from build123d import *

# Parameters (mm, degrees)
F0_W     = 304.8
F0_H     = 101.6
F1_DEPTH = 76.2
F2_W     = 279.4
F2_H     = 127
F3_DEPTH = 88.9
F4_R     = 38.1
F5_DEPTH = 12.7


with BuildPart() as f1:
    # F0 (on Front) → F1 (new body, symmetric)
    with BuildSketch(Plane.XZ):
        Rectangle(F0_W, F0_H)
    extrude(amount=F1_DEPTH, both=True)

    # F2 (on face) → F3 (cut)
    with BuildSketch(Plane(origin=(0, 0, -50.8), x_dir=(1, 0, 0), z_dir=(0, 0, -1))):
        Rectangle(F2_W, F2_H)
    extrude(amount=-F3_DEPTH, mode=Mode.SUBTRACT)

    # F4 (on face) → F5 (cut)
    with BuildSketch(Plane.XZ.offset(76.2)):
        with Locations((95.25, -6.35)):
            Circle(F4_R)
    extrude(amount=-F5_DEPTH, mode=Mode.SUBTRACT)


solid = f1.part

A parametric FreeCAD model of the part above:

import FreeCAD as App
import Part
import Sketcher
from FreeCAD import Vector
Q = App.Units.Quantity


def add_polygon(sketch, points):
    """Adds a closed chain of lines whose ends are joined by coincident constraints."""
    first, n = sketch.GeometryCount, len(points)
    for a, b in zip(points, points[1:] + points[:1]):
        sketch.addGeometry(Part.LineSegment(App.Vector(*a, 0), App.Vector(*b, 0)), False)
    for i in range(n):
        sketch.addConstraint(Sketcher.Constraint("Coincident", first + i, 2, first + (i + 1) % n, 1))

doc = App.newDocument("Part")
body = doc.addObject("PartDesign::Body", "Body")

# Sketch on XZ plane
sketch1 = body.newObject("Sketcher::SketchObject", "Sketch")
sketch1.AttachmentSupport = (doc.getObject("XZ_Plane"), [""])
sketch1.MapMode = "FlatFace"
add_polygon(sketch1, [(-152, 51), (-152, -51), (152, -51), (152, 51)])  # lines 0-3
sketch1.addConstraint(Sketcher.Constraint("Vertical", 0))
sketch1.addConstraint(Sketcher.Constraint("Horizontal", 1))
sketch1.addConstraint(Sketcher.Constraint("Vertical", 2))
sketch1.addConstraint(Sketcher.Constraint("Horizontal", 3))
sketch1.addConstraint(Sketcher.Constraint("Symmetric", 0, 2, 2, 2, -1, 1))
sketch1.addConstraint(Sketcher.Constraint("DistanceX", 1, 1, 1, 2, Q("12 in")))
sketch1.addConstraint(Sketcher.Constraint("DistanceY", 0, 2, 0, 1, Q("4 in")))
pad1 = body.newObject("PartDesign::Pad", "Pad")
pad1.Profile = sketch1
pad1.Length = Q("6 in")
pad1.Midplane = True

# Sketch on XY plane
sketch2 = body.newObject("Sketcher::SketchObject", "Sketch001")
sketch2.AttachmentSupport = (doc.getObject("XY_Plane"), [""])
sketch2.MapMode = "FlatFace"
sketch2.AttachmentOffset = App.Placement(Vector(0, 0, -2 * 25.4), App.Rotation())
add_polygon(sketch2, [(-140, -64), (-140, 64), (140, 64), (140, -64)])  # lines 0-3
sketch2.addConstraint(Sketcher.Constraint("Vertical", 0))
sketch2.addConstraint(Sketcher.Constraint("Horizontal", 1))
sketch2.addConstraint(Sketcher.Constraint("Vertical", 2))
sketch2.addConstraint(Sketcher.Constraint("Horizontal", 3))
sketch2.addConstraint(Sketcher.Constraint("Symmetric", 0, 2, 2, 2, -1, 1))
sketch2.addConstraint(Sketcher.Constraint("DistanceX", 1, 1, 1, 2, Q("11 in")))
sketch2.addConstraint(Sketcher.Constraint("DistanceY", 0, 1, 0, 2, Q("5 in")))
pocket1 = body.newObject("PartDesign::Pocket", "Pocket")
pocket1.Profile = sketch2
pocket1.Length = Q("3.5 in")
pocket1.Reversed = True

# Sketch on XZ plane
sketch3 = body.newObject("Sketcher::SketchObject", "Sketch002")
sketch3.AttachmentSupport = (doc.getObject("XZ_Plane"), [""])
sketch3.MapMode = "FlatFace"
sketch3.AttachmentOffset = App.Placement(Vector(0, 0, 3 * 25.4), App.Rotation())
sketch3.addGeometry(Part.Circle(Vector(95, -6, 0), Vector(0, 0, 1), 38), False)
sketch3.addConstraint(Sketcher.Constraint("Diameter", 0, Q("3 in")))
sketch3.addConstraint(Sketcher.Constraint("DistanceX", -1, 1, 0, 3, Q("3.75 in")))
sketch3.addConstraint(Sketcher.Constraint("DistanceY", 0, 3, -1, 1, Q("0.25 in")))
pocket2 = body.newObject("PartDesign::Pocket", "Pocket001")
pocket2.Profile = sketch3
pocket2.Length = Q("0.5 in")

doc.recompute()
